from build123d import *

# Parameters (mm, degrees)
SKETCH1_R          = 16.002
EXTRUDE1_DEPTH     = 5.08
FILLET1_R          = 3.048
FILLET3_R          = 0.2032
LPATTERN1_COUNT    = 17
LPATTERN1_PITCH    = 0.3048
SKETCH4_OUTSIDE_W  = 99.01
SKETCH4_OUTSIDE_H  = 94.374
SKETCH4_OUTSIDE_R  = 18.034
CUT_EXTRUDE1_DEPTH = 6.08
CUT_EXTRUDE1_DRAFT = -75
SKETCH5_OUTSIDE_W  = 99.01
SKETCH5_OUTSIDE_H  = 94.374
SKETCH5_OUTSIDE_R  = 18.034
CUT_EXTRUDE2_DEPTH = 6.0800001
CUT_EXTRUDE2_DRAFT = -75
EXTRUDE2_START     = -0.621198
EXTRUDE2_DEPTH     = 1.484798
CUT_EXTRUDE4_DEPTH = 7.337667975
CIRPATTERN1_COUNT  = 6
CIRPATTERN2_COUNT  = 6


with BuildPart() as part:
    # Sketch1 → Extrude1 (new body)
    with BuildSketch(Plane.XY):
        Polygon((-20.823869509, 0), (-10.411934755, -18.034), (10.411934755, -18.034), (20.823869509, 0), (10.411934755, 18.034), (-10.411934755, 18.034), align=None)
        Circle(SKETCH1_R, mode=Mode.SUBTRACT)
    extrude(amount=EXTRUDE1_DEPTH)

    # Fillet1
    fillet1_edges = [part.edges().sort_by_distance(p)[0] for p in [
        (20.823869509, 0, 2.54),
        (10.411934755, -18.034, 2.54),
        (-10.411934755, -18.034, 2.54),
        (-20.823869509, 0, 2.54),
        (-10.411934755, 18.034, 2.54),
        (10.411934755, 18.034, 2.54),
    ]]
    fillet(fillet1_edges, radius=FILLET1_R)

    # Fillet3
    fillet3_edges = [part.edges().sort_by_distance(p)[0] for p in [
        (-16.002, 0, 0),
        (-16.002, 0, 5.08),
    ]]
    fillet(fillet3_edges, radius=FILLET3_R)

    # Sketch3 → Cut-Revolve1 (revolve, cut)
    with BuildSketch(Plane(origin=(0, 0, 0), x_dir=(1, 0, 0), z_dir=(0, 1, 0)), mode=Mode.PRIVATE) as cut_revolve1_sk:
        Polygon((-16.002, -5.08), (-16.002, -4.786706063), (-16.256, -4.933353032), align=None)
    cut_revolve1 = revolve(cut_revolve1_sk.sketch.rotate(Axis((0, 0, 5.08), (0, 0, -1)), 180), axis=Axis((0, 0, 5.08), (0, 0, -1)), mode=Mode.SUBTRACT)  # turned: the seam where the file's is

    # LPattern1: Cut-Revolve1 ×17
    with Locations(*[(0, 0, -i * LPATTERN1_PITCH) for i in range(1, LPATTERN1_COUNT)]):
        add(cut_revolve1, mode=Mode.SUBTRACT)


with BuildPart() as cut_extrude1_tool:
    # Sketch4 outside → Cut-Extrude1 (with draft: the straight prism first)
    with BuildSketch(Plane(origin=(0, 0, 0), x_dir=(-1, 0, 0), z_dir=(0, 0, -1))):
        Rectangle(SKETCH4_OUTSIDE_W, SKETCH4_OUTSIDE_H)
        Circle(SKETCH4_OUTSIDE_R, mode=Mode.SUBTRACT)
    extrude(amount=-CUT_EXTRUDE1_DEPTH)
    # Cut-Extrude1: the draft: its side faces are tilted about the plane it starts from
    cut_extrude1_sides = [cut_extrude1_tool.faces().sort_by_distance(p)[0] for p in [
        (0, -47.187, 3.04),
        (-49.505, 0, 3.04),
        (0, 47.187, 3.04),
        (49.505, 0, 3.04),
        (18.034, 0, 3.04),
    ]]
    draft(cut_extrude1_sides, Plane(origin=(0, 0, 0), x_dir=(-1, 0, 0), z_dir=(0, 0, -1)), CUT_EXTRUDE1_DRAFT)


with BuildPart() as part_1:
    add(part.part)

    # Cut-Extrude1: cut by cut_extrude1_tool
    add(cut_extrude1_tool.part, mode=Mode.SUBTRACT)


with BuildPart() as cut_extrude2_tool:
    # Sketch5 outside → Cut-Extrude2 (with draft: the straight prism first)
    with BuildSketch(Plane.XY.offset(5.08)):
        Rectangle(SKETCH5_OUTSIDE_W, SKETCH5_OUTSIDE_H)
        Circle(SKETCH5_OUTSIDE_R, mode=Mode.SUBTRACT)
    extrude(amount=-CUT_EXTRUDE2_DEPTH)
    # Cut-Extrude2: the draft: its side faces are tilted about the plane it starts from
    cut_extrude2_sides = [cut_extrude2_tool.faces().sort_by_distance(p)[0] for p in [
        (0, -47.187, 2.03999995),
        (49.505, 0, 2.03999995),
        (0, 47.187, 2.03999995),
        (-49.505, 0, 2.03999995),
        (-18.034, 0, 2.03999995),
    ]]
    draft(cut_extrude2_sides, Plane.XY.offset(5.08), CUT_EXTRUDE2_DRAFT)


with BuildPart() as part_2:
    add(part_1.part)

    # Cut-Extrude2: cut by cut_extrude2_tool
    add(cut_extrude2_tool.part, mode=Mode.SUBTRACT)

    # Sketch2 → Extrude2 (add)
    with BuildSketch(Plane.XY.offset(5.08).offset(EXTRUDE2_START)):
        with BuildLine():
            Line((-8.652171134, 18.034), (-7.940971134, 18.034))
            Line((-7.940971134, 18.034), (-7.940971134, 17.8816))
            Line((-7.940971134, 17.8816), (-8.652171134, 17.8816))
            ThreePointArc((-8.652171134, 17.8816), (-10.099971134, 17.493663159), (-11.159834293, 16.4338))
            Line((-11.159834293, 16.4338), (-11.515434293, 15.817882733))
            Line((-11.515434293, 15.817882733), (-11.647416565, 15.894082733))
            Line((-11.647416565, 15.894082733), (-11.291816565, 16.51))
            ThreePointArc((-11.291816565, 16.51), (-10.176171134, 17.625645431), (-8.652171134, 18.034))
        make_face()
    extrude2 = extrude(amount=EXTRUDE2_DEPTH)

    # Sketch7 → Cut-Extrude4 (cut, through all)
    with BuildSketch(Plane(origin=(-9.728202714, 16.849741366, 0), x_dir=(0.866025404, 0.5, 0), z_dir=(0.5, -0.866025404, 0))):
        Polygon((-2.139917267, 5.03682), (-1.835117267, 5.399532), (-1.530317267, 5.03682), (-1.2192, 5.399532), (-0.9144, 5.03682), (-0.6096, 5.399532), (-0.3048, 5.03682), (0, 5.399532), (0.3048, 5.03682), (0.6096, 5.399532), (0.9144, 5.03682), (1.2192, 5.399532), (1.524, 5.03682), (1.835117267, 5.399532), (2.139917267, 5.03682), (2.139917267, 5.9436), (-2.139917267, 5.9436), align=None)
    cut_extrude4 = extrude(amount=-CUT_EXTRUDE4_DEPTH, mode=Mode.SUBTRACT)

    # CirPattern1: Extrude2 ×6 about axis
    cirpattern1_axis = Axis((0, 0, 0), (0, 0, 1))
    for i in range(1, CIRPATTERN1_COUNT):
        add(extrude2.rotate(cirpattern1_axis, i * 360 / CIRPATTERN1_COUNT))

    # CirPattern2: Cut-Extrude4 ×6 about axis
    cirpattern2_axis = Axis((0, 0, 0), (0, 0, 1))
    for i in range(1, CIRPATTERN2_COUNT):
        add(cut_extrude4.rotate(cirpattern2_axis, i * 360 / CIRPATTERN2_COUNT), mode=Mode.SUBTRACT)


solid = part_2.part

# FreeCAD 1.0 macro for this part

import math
import FreeCAD as App
import Part
import Sketcher

V = App.Vector
Q = App.Units.Quantity


def edges_at(feature, points):
    """Names of the edges that pass closest to the given points."""
    edges = feature.Shape.Edges
    near = lambda p: min(range(len(edges)), key=lambda i: edges[i].distToShape(Part.Vertex(*p))[0])
    return sorted({f"Edge{near(p) + 1}" for p in points})


def faces_at(feature, points):
    """Names of the faces that lie closest to the given points."""
    faces = feature.Shape.Faces
    near = lambda p: min(range(len(faces)), key=lambda i: faces[i].distToShape(Part.Vertex(*p))[0])
    return sorted({f"Face{near(p) + 1}" for p in points})


def add_polygon(sketch, points):
    """Adds a closed chain of lines whose ends are joined by coincident constraints."""
    first, n = sketch.GeometryCount, len(points)
    for a, b in zip(points, points[1:] + points[:1]):
        sketch.addGeometry(Part.LineSegment(App.Vector(*a, 0), App.Vector(*b, 0)), False)
    for i in range(n):
        sketch.addConstraint(Sketcher.Constraint("Coincident", first + i, 2, first + (i + 1) % n, 1))

doc = App.newDocument("Part")
body = doc.addObject("PartDesign::Body", "Body")

sketch1 = body.newObject("Sketcher::SketchObject", "Sketch")
sketch1.AttachmentSupport = (doc.getObject("XY_Plane"), [""])
sketch1.MapMode = "FlatFace"
add_polygon(sketch1, [(-21, 0), (-10, -18), (10, -18), (21, 0), (10, 18), (-10, 18)])
sketch1.addGeometry(Part.Circle(V(0, 0, 0), V(0, 0, 1), 16), False)
sketch1.addConstraint([
    Sketcher.Constraint("Horizontal", 1),
    Sketcher.Constraint("Horizontal", 4),
    Sketcher.Constraint("Coincident", 6, 3, -1, 1),
    Sketcher.Constraint("Symmetric", 0, 2, 3, 2, -1, 1),
    Sketcher.Constraint("Symmetric", 2, 2, 5, 2, -1, 1),
    Sketcher.Constraint("PointOnObject", 2, 2, -1),
    Sketcher.Constraint("Parallel", 2, 5),
    Sketcher.Constraint("Vertical", 1, 2, 3, 2),
    Sketcher.Constraint("Diameter", 6, Q("1.26 in")),
    Sketcher.Constraint("Angle", 0, Q("-60 deg")),
    Sketcher.Constraint("DistanceY", 0, 2, -1, 1, Q("0.71 in")),
    Sketcher.Constraint("DistanceX", 1, 1, 1, 2, Q("20.82387 mm")),
])
pad1 = body.newObject("PartDesign::Pad", "Pad")
pad1.Profile = sketch1
pad1.Length = Q("0.2 in")
doc.recompute()

fillet = body.newObject("PartDesign::Fillet", "Fillet")
fillet.Base = (pad1, edges_at(pad1, [
    (20.824, 0, 2.54),
    (10.412, -18.034, 2.54),
    (-10.412, -18.034, 2.54),
    (-20.824, 0, 2.54),
    (-10.412, 18.034, 2.54),
    (10.412, 18.034, 2.54),
]))
fillet.Radius = Q("0.12 in")
doc.recompute()

fillet2 = body.newObject("PartDesign::Fillet", "Fillet001")
fillet2.Base = (fillet, edges_at(fillet, [(-16.002, 0, 0), (-16.002, 0, 5.08)]))
fillet2.Radius = Q("0.008 in")

sketch2 = body.newObject("Sketcher::SketchObject", "Sketch001")
sketch2.AttachmentSupport = (doc.getObject("XZ_Plane"), [""])
sketch2.MapMode = "FlatFace"
add_polygon(sketch2, [(-16, 5.08), (-16, 4.79), (-16.26, 4.93)])
sketch2.addConstraint([
    Sketcher.Constraint("Vertical", 0),
    Sketcher.Constraint("Equal", 1, 2),
    Sketcher.Constraint("Angle", 1, Q("150 deg")),
    Sketcher.Constraint("DistanceY", -1, 1, 2, 2, Q("0.2 in")),
    Sketcher.Constraint("DistanceX", 0, 2, -1, 1, Q("0.63 in")),
    Sketcher.Constraint("DistanceX", 1, 2, -1, 1, Q("0.64 in")),
])
groove = body.newObject("PartDesign::Groove", "Groove")
groove.Profile = sketch2
groove.ReferenceAxis = (sketch2, ["V_Axis"])
groove.Angle = 360
doc.recompute()

linearpattern = body.newObject("PartDesign::LinearPattern", "LinearPattern")
linearpattern.Originals = [groove]
linearpattern.Direction = (doc.getObject("Z_Axis"), [""])
linearpattern.Mode = "offset"
linearpattern.Offset = Q("0.012 in")
linearpattern.Occurrences = 17
linearpattern.Reversed = True
body.Tip = linearpattern
body2 = doc.addObject("PartDesign::Body", "Body001")

sketch3 = body2.newObject("Sketcher::SketchObject", "Sketch002")
sketch3.AttachmentSupport = (doc.getObject("XY_Plane001"), [""])
sketch3.MapMode = "FlatFace"
add_polygon(sketch3, [(50, 47), (50, -47), (-50, -47), (-50, 47)])
sketch3.addGeometry(Part.Circle(V(0, 0, 0), V(0, 0, 1), 18), False)
sketch3.addConstraint([
    Sketcher.Constraint("Vertical", 0),
    Sketcher.Constraint("Horizontal", 1),
    Sketcher.Constraint("Vertical", 2),
    Sketcher.Constraint("Horizontal", 3),
    Sketcher.Constraint("Coincident", 4, 3, -1, 1),
    Sketcher.Constraint("Symmetric", 0, 2, 2, 2, -1, 1),
    Sketcher.Constraint("Diameter", 4, Q("1.42 in")),
    Sketcher.Constraint("DistanceX", 1, 2, 1, 1, Q("99.01 mm")),
    Sketcher.Constraint("DistanceY", 0, 2, 0, 1, Q("94.374 mm")),
])
pad2 = body2.newObject("PartDesign::Pad", "Pad001")
pad2.Profile = sketch3
pad2.Length = 6.08
doc.recompute()

draft = body2.newObject("PartDesign::Draft", "Draft")
draft.Base = (pad2, faces_at(pad2, [
    (0, -47.187, 3.04),
    (-49.505, 0, 3.04),
    (0, 47.187, 3.04),
    (49.505, 0, 3.04),
    (18.034, 0, 3.04),
]))
draft.NeutralPlane = (doc.getObject("XY_Plane001"), [""])
draft.Angle = 75
draft.Reversed = False
doc.recompute()

boolean = body.newObject("PartDesign::Boolean", "Boolean")
boolean.Type = "Cut"
boolean.addObjects([body2])
body3 = doc.addObject("PartDesign::Body", "Body002")

sketch4 = body3.newObject("Sketcher::SketchObject", "Sketch003")
sketch4.AttachmentSupport = (doc.getObject("XY_Plane002"), [""])
sketch4.MapMode = "FlatFace"
sketch4.AttachmentOffset = App.Placement(V(0, 0, 0.2 * 25.4), App.Rotation())
add_polygon(sketch4, [(-50, 47), (-50, -47), (50, -47), (50, 47)])
sketch4.addGeometry(Part.Circle(V(0, 0, 0), V(0, 0, 1), 18), False)
sketch4.addConstraint([
    Sketcher.Constraint("Vertical", 0),
    Sketcher.Constraint("Horizontal", 1),
    Sketcher.Constraint("Vertical", 2),
    Sketcher.Constraint("Horizontal", 3),
    Sketcher.Constraint("Coincident", 4, 3, -1, 1),
    Sketcher.Constraint("Symmetric", 0, 2, 2, 2, -1, 1),
    Sketcher.Constraint("Diameter", 4, Q("1.42 in")),
    Sketcher.Constraint("DistanceX", 1, 1, 1, 2, Q("99.01 mm")),
    Sketcher.Constraint("DistanceY", 0, 2, 0, 1, Q("94.374 mm")),
])
pad3 = body3.newObject("PartDesign::Pad", "Pad002")
pad3.Profile = sketch4
pad3.Length = 6.08
pad3.Reversed = True
doc.recompute()

datumplane = body3.newObject("PartDesign::Plane", "DatumPlane")
datumplane.AttachmentSupport = (doc.getObject("XY_Plane002"), [""])
datumplane.MapMode = "FlatFace"
datumplane.AttachmentOffset = App.Placement(V(0, 0, 0.2 * 25.4), App.Rotation())
draft2 = body3.newObject("PartDesign::Draft", "Draft001")
draft2.Base = (pad3, faces_at(pad3, [
    (0, -47.187, 2.04),
    (49.505, 0, 2.04),
    (0, 47.187, 2.04),
    (-49.505, 0, 2.04),
    (-18.034, 0, 2.04),
]))
draft2.NeutralPlane = (datumplane, [""])
draft2.Angle = 75
draft2.Reversed = True
doc.recompute()

boolean2 = body.newObject("PartDesign::Boolean", "Boolean001")
boolean2.Type = "Cut"
boolean2.addObjects([body3])

sketch5 = body.newObject("Sketcher::SketchObject", "Sketch004")
sketch5.AttachmentSupport = (doc.getObject("XY_Plane"), [""])
sketch5.MapMode = "FlatFace"
sketch5.AttachmentOffset = App.Placement(V(0, 0, 4.458802), App.Rotation())
sketch5.addGeometry([
    Part.LineSegment(V(-7.94, 18.03, 0), V(-8.65, 18.03, 0)),
    Part.ArcOfCircle(Part.Circle(V(-8.65, 14.99, 0), V(0, 0, 1), 3.05), math.radians(90), math.radians(150)),
    Part.LineSegment(V(-11.29, 16.51, 0), V(-11.65, 15.89, 0)),
    Part.LineSegment(V(-11.65, 15.89, 0), V(-11.52, 15.82, 0)),
    Part.LineSegment(V(-11.52, 15.82, 0), V(-11.16, 16.43, 0)),
    Part.ArcOfCircle(Part.Circle(V(-8.65, 14.99, 0), V(0, 0, 1), 2.9), math.radians(90), math.radians(150)),
    Part.LineSegment(V(-8.65, 17.88, 0), V(-7.94, 17.88, 0)),
    Part.LineSegment(V(-7.94, 17.88, 0), V(-7.94, 18.03, 0)),
], False)
sketch5.addConstraint([
    Sketcher.Constraint("Tangent", 0, 2, 1, 1),
    Sketcher.Constraint("Tangent", 1, 2, 2, 1),
    Sketcher.Constraint("Coincident", 2, 2, 3, 1),
    Sketcher.Constraint("Coincident", 3, 2, 4, 1),
    Sketcher.Constraint("Tangent", 4, 2, 5, 2),
    Sketcher.Constraint("Tangent", 5, 1, 6, 1),
    Sketcher.Constraint("Coincident", 6, 2, 7, 1),
    Sketcher.Constraint("Coincident", 7, 2, 0, 1),
    Sketcher.Constraint("Horizontal", 0),
    Sketcher.Constraint("Horizontal", 6),
    Sketcher.Constraint("Vertical", 7),
    Sketcher.Constraint("Coincident", 5, 3, 1, 3),
    Sketcher.Constraint("Perpendicular", 2, 3),
    Sketcher.Constraint("Perpendicular", 3, 4),
    Sketcher.Constraint("Radius", 1, Q("0.12 in")),
    Sketcher.Constraint("Angle", 2, Q("-120 deg")),
    Sketcher.Constraint("Radius", 5, Q("0.114 in")),
    Sketcher.Constraint("DistanceX", 0, 2, 0, 1, Q("0.028 in")),
    Sketcher.Constraint("DistanceY", -1, 1, 1, 3, Q("0.59 in")),
    Sketcher.Constraint("Distance", 2, Q("0.028 in")),
    Sketcher.Constraint("DistanceX", 1, 3, -1, 1, Q("8.652171 mm")),
])
pad4 = body.newObject("PartDesign::Pad", "Pad003")
pad4.Profile = sketch5
pad4.Length = 1.484798

sketch6 = body.newObject("Sketcher::SketchObject", "Sketch005")
sketch6.Placement = App.Placement(V(-9.728203, 16.849741, 0), App.Rotation(V(0.866025404, 0.5, 0), V(0, 0, 1), V(0.5, -0.866025404, 0), "ZXY"))
add_polygon(sketch6, [(-2.14, 5.04), (-1.84, 5.4), (-1.53, 5.04), (-1.22, 5.4), (-0.91, 5.04), (-0.61, 5.4), (-0.3, 5.04), (0, 5.4), (0.3, 5.04), (0.61, 5.4), (0.91, 5.04), (1.22, 5.4), (1.52, 5.04), (1.84, 5.4), (2.14, 5.04), (2.14, 5.94), (-2.14, 5.94)])
sketch6.addConstraint([
    Sketcher.Constraint("Vertical", 14),
    Sketcher.Constraint("Horizontal", 15),
    Sketcher.Constraint("Vertical", 16),
    Sketcher.Constraint("Symmetric", 5, 2, 7, 2, -2),
    Sketcher.Constraint("Symmetric", 4, 2, 8, 2, -2),
    Sketcher.Constraint("Symmetric", 3, 2, 9, 2, -2),
    Sketcher.Constraint("Symmetric", 2, 2, 10, 2, -2),
    Sketcher.Constraint("Symmetric", 0, 2, 12, 2, -2),
    Sketcher.Constraint("Symmetric", 13, 2, 16, 2, -2),
    Sketcher.Constraint("PointOnObject", 6, 2, -2),
    Sketcher.Constraint("Parallel", 1, 3),
    Sketcher.Constraint("Parallel", 0, 4),
    Sketcher.Constraint("Parallel", 3, 5),
    Sketcher.Constraint("Parallel", 4, 6),
    Sketcher.Constraint("Parallel", 5, 7),
    Sketcher.Constraint("Parallel", 9, 11),
    Sketcher.Constraint("Parallel", 2, 12),
    Sketcher.Constraint("Horizontal", 0, 2, 2, 2),
    Sketcher.Constraint("Horizontal", 1, 2, 3, 2),
    Sketcher.Constraint("Horizontal", 2, 2, 4, 2),
    Sketcher.Constraint("Horizontal", 3, 2, 5, 2),
    Sketcher.Constraint("Horizontal", 4, 2, 6, 2),
    Sketcher.Constraint("Horizontal", 11, 2, 13, 2),
    Sketcher.Constraint("DistanceX", -1, 1, 11, 2, Q("0.06 in")),
    Sketcher.Constraint("DistanceY", 14, 1, 14, 2, Q("0.0357 in")),
    Sketcher.Constraint("DistanceY", -1, 1, 14, 2, Q("0.234 in")),
    Sketcher.Constraint("DistanceX", 15, 2, 15, 1, Q("4.279835 mm")),
    Sketcher.Constraint("DistanceY", 12, 2, 14, 2, Q("0.544068 mm")),
])
pocket1 = body.newObject("PartDesign::Pocket", "Pocket")
pocket1.Profile = sketch6
pocket1.Type = "ThroughAll"
doc.recompute()

polarpattern = body.newObject("PartDesign::PolarPattern", "PolarPattern")
polarpattern.Originals = [pad4]
polarpattern.Axis = (doc.getObject("Z_Axis"), [""])
polarpattern.Angle = 360
polarpattern.Occurrences = 6
body.Tip = polarpattern
doc.recompute()

polarpattern2 = body.newObject("PartDesign::PolarPattern", "PolarPattern001")
polarpattern2.Originals = [pocket1]
polarpattern2.Axis = (doc.getObject("Z_Axis"), [""])
polarpattern2.Angle = 360
polarpattern2.Occurrences = 6
body.Tip = polarpattern2

doc.recompute()
